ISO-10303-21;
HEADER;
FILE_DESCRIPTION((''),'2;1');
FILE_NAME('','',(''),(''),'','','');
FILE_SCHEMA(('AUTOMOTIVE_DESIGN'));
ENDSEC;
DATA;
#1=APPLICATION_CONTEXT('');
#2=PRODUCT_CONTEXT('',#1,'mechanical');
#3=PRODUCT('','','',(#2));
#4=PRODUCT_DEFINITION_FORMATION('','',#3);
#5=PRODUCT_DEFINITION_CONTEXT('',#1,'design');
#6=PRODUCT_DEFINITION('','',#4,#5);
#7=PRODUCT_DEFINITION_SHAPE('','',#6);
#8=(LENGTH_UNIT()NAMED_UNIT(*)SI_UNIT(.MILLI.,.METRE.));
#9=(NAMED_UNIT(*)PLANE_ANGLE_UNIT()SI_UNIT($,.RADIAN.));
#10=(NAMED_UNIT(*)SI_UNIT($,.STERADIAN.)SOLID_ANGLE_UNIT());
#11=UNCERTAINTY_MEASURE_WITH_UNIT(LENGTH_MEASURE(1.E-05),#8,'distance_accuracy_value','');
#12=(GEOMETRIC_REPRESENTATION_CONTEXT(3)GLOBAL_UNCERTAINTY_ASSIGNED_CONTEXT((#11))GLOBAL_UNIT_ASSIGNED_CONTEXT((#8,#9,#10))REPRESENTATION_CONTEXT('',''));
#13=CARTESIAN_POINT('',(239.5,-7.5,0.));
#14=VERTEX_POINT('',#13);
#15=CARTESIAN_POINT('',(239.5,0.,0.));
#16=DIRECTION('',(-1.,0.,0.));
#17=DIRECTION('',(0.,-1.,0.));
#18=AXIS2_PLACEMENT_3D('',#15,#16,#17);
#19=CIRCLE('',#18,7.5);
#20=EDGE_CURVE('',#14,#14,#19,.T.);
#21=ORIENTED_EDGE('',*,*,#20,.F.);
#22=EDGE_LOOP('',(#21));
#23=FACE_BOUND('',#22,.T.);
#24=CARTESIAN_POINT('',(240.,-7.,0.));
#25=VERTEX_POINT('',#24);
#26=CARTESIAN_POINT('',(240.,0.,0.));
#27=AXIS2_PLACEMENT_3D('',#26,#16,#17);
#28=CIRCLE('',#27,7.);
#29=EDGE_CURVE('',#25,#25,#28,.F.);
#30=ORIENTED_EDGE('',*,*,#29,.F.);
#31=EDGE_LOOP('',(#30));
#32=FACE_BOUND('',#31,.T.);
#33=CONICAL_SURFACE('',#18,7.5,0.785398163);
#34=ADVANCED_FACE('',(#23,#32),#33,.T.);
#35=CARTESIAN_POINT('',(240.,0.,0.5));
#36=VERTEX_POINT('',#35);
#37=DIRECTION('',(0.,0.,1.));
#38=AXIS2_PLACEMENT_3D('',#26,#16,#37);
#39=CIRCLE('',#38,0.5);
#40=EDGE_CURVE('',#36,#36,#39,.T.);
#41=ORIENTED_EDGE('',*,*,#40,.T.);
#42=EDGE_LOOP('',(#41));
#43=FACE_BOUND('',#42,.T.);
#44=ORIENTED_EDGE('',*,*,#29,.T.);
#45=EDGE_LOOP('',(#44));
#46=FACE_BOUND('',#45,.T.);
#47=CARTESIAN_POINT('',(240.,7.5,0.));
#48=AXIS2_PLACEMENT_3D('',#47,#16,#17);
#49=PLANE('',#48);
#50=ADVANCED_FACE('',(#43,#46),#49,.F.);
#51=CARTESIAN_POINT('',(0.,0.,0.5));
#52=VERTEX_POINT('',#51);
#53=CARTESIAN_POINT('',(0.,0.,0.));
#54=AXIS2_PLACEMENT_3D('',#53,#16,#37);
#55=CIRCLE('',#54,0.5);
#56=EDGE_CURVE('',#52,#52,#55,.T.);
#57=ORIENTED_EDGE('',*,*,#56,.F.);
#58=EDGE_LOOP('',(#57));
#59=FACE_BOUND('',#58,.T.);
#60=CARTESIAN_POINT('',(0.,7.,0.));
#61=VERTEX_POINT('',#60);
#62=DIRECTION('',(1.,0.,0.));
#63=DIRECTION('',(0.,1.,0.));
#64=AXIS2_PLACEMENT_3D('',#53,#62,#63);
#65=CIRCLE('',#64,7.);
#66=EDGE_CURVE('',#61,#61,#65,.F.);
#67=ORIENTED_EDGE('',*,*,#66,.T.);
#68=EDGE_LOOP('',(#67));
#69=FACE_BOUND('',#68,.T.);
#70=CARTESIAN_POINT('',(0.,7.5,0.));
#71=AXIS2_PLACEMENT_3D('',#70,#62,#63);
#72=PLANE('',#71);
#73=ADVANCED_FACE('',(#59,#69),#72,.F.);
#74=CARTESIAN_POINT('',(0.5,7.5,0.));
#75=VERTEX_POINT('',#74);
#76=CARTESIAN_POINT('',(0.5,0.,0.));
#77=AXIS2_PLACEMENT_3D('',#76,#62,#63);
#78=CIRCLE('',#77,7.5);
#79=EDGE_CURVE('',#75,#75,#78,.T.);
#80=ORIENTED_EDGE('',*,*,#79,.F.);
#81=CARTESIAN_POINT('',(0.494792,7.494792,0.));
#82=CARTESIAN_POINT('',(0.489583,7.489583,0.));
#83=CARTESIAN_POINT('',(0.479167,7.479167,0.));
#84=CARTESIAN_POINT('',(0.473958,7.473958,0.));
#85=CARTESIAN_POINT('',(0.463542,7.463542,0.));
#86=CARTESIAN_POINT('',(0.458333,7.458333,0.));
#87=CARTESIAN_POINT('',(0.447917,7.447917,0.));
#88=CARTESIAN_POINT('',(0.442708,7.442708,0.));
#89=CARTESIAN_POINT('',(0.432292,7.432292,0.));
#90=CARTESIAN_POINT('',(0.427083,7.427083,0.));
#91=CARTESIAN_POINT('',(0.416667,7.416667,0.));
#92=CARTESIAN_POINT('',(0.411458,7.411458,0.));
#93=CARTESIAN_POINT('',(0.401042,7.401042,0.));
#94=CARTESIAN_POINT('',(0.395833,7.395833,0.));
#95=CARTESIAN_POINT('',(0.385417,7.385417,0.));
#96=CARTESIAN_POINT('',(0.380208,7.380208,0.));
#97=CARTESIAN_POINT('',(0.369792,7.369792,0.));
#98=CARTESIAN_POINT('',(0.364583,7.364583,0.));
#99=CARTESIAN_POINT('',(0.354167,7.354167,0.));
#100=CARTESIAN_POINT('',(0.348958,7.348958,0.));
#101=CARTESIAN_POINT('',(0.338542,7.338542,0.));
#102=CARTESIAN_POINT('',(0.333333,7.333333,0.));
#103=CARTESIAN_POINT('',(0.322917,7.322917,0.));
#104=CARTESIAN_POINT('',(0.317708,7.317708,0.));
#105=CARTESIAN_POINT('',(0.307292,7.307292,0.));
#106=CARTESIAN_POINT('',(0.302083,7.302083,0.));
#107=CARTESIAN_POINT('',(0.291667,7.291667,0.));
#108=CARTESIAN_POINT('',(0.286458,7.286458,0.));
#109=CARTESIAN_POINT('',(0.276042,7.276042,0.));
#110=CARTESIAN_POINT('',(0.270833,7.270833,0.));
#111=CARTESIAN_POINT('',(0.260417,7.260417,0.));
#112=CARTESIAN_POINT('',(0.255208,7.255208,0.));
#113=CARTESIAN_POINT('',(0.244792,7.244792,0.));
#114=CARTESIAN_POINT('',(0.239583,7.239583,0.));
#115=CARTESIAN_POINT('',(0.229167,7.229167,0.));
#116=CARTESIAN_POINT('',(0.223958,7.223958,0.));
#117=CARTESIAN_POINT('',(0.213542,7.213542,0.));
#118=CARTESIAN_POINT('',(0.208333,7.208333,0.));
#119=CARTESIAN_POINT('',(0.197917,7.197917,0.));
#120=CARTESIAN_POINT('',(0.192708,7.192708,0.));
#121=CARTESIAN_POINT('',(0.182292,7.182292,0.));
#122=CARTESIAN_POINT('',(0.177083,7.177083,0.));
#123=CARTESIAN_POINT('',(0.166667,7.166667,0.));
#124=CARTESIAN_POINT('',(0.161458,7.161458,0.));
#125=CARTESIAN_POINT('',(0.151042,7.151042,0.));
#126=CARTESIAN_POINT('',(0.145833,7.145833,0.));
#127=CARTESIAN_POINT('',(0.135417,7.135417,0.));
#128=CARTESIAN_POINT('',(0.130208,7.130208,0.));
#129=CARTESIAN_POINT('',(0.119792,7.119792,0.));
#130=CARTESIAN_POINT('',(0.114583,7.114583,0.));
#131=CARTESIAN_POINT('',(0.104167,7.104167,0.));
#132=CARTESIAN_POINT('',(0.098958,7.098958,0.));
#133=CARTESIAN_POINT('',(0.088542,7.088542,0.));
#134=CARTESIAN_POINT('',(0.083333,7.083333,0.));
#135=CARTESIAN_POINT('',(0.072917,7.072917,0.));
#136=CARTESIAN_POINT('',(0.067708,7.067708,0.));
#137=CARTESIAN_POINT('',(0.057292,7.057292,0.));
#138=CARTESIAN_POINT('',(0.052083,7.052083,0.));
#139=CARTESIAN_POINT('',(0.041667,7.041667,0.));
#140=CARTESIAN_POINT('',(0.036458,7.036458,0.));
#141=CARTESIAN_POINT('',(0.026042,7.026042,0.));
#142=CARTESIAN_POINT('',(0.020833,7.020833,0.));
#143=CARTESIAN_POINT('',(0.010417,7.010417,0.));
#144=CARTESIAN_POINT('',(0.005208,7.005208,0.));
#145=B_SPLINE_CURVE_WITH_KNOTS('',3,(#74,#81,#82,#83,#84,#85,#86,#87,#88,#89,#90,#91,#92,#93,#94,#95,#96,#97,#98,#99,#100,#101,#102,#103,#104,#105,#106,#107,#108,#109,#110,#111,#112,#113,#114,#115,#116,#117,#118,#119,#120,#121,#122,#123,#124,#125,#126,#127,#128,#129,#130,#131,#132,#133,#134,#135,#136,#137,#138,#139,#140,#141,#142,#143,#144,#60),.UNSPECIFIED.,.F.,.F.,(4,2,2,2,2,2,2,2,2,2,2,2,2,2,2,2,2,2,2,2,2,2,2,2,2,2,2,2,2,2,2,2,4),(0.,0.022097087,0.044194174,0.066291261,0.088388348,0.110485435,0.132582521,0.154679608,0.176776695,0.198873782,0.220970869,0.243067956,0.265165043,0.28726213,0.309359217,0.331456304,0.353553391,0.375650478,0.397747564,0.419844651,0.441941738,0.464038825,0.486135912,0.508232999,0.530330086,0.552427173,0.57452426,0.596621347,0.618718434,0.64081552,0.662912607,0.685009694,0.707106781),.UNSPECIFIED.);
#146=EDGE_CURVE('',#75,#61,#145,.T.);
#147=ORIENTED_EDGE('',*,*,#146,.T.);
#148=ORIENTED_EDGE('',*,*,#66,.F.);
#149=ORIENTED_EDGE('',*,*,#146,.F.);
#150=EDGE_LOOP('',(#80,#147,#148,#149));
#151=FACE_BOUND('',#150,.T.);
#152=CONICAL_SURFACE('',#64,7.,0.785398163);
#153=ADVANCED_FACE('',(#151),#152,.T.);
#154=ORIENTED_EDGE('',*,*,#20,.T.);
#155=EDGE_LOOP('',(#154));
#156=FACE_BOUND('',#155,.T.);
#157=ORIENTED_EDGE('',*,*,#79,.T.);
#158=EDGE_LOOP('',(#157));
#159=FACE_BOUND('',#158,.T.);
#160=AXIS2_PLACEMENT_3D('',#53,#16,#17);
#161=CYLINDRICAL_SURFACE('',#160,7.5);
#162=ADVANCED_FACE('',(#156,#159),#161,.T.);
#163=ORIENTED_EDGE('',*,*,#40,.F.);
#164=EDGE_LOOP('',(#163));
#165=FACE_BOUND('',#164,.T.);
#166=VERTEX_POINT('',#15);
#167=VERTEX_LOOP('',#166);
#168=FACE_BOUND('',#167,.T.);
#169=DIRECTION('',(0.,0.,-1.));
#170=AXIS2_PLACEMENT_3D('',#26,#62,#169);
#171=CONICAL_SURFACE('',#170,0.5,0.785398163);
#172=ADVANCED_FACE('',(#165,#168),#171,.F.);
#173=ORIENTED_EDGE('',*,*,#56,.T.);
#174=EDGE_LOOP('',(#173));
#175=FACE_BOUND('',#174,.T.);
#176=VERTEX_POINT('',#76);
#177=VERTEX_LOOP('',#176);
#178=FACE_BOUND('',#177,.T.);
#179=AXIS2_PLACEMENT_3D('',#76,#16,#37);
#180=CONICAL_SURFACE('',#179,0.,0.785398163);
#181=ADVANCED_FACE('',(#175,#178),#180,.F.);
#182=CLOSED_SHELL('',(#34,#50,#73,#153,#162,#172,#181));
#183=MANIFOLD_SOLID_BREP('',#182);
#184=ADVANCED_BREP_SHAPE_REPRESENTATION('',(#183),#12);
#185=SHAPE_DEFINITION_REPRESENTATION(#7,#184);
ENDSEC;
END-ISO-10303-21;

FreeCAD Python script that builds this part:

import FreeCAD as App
import Part
import Sketcher
Q = App.Units.Quantity


def edges_at(feature, points):
    """Names of the edges that pass closest to the given points."""
    edges = feature.Shape.Edges
    near = lambda p: min(range(len(edges)), key=lambda i: edges[i].distToShape(Part.Vertex(*p))[0])
    return sorted({f"Edge{near(p) + 1}" for p in points})

doc = App.newDocument("Part")
body = doc.addObject("PartDesign::Body", "Body")

# Sketch on XY plane
sketch1 = doc.addObject("Sketcher::SketchObject", "Sketch")
body.addObject(sketch1)
sketch1.AttachmentSupport = (doc.XY_Plane, [""])
sketch1.MapMode = "FlatFace"
sketch1.addGeometry(Part.LineSegment(App.Vector(0, 7.5, 0), App.Vector(0, 0, 0)), False)
sketch1.addGeometry(Part.LineSegment(App.Vector(0, 0, 0), App.Vector(240, 0, 0)), False)
sketch1.addGeometry(Part.LineSegment(App.Vector(240, 0, 0), App.Vector(240, 7.5, 0)), False)
sketch1.addGeometry(Part.LineSegment(App.Vector(240, 7.5, 0), App.Vector(0, 7.5, 0)), False)
sketch1.addConstraint(Sketcher.Constraint("Coincident", 0, 2, 1, 1))
sketch1.addConstraint(Sketcher.Constraint("Coincident", 1, 2, 2, 1))
sketch1.addConstraint(Sketcher.Constraint("Coincident", 2, 2, 3, 1))
sketch1.addConstraint(Sketcher.Constraint("Coincident", 3, 2, 0, 1))
sketch1.addConstraint(Sketcher.Constraint("Vertical", 0))
sketch1.addConstraint(Sketcher.Constraint("Horizontal", 1))
sketch1.addConstraint(Sketcher.Constraint("Vertical", 2))
sketch1.addConstraint(Sketcher.Constraint("Horizontal", 3))
sketch1.addConstraint(Sketcher.Constraint("Coincident", 0, 2, -1, 1))
sketch1.addConstraint(Sketcher.Constraint("DistanceX", 1, 1, 1, 2, Q("240 mm")))
sketch1.addConstraint(Sketcher.Constraint("DistanceY", 0, 2, 0, 1, Q("7.5 mm")))
revolution = doc.addObject("PartDesign::Revolution", "Revolution")
body.addObject(revolution)
revolution.Profile = sketch1
revolution.ReferenceAxis = (sketch1, ["H_Axis"])
revolution.Angle = 360

# Sketch on XY plane
sketch2 = doc.addObject("Sketcher::SketchObject", "Sketch001")
body.addObject(sketch2)
sketch2.AttachmentSupport = (doc.XY_Plane, [""])
sketch2.MapMode = "FlatFace"
sketch2.addGeometry(Part.LineSegment(App.Vector(0, 0.5, 0), App.Vector(0, 0, 0)), False)
sketch2.addGeometry(Part.LineSegment(App.Vector(0, 0, 0), App.Vector(0.5, 0, 0)), False)
sketch2.addGeometry(Part.LineSegment(App.Vector(0.5, 0, 0), App.Vector(0, 0.5, 0)), False)
sketch2.addGeometry(Part.LineSegment(App.Vector(240, 0.5, 0), App.Vector(239.5, 0, 0)), False)
sketch2.addGeometry(Part.LineSegment(App.Vector(239.5, 0, 0), App.Vector(240, 0, 0)), False)
sketch2.addGeometry(Part.LineSegment(App.Vector(240, 0, 0), App.Vector(240, 0.5, 0)), False)
sketch2.addConstraint(Sketcher.Constraint("Coincident", 0, 2, 1, 1))
sketch2.addConstraint(Sketcher.Constraint("Coincident", 1, 2, 2, 1))
sketch2.addConstraint(Sketcher.Constraint("Coincident", 2, 2, 0, 1))
sketch2.addConstraint(Sketcher.Constraint("Coincident", 3, 2, 4, 1))
sketch2.addConstraint(Sketcher.Constraint("Coincident", 4, 2, 5, 1))
sketch2.addConstraint(Sketcher.Constraint("Coincident", 5, 2, 3, 1))
sketch2.addConstraint(Sketcher.Constraint("Vertical", 0))
sketch2.addConstraint(Sketcher.Constraint("Horizontal", 1))
sketch2.addConstraint(Sketcher.Constraint("Horizontal", 4))
sketch2.addConstraint(Sketcher.Constraint("Vertical", 5))
sketch2.addConstraint(Sketcher.Constraint("Coincident", 0, 2, -1, 1))
sketch2.addConstraint(Sketcher.Constraint("PointOnObject", 3, 2, -1))
sketch2.addConstraint(Sketcher.Constraint("Perpendicular", 2, 3))
sketch2.addConstraint(Sketcher.Constraint("Horizontal", 2, 2, 5, 2))
sketch2.addConstraint(Sketcher.Constraint("Equal", 1, 4))
sketch2.addConstraint(Sketcher.Constraint("DistanceX", 1, 1, 1, 2, Q("0.5 mm")))
sketch2.addConstraint(Sketcher.Constraint("DistanceX", -1, 1, 4, 2, Q("240 mm")))
groove = doc.addObject("PartDesign::Groove", "Groove")
body.addObject(groove)
groove.Profile = sketch2
groove.ReferenceAxis = (sketch2, ["H_Axis"])
groove.Angle = 360
doc.recompute()

chamfer = doc.addObject("PartDesign::Chamfer", "Chamfer")
body.addObject(chamfer)
chamfer.Base = (groove, edges_at(groove, [(0, 7.5, 0), (240, 7.5, 0)]))
chamfer.Size = 0.5

doc.recompute()
